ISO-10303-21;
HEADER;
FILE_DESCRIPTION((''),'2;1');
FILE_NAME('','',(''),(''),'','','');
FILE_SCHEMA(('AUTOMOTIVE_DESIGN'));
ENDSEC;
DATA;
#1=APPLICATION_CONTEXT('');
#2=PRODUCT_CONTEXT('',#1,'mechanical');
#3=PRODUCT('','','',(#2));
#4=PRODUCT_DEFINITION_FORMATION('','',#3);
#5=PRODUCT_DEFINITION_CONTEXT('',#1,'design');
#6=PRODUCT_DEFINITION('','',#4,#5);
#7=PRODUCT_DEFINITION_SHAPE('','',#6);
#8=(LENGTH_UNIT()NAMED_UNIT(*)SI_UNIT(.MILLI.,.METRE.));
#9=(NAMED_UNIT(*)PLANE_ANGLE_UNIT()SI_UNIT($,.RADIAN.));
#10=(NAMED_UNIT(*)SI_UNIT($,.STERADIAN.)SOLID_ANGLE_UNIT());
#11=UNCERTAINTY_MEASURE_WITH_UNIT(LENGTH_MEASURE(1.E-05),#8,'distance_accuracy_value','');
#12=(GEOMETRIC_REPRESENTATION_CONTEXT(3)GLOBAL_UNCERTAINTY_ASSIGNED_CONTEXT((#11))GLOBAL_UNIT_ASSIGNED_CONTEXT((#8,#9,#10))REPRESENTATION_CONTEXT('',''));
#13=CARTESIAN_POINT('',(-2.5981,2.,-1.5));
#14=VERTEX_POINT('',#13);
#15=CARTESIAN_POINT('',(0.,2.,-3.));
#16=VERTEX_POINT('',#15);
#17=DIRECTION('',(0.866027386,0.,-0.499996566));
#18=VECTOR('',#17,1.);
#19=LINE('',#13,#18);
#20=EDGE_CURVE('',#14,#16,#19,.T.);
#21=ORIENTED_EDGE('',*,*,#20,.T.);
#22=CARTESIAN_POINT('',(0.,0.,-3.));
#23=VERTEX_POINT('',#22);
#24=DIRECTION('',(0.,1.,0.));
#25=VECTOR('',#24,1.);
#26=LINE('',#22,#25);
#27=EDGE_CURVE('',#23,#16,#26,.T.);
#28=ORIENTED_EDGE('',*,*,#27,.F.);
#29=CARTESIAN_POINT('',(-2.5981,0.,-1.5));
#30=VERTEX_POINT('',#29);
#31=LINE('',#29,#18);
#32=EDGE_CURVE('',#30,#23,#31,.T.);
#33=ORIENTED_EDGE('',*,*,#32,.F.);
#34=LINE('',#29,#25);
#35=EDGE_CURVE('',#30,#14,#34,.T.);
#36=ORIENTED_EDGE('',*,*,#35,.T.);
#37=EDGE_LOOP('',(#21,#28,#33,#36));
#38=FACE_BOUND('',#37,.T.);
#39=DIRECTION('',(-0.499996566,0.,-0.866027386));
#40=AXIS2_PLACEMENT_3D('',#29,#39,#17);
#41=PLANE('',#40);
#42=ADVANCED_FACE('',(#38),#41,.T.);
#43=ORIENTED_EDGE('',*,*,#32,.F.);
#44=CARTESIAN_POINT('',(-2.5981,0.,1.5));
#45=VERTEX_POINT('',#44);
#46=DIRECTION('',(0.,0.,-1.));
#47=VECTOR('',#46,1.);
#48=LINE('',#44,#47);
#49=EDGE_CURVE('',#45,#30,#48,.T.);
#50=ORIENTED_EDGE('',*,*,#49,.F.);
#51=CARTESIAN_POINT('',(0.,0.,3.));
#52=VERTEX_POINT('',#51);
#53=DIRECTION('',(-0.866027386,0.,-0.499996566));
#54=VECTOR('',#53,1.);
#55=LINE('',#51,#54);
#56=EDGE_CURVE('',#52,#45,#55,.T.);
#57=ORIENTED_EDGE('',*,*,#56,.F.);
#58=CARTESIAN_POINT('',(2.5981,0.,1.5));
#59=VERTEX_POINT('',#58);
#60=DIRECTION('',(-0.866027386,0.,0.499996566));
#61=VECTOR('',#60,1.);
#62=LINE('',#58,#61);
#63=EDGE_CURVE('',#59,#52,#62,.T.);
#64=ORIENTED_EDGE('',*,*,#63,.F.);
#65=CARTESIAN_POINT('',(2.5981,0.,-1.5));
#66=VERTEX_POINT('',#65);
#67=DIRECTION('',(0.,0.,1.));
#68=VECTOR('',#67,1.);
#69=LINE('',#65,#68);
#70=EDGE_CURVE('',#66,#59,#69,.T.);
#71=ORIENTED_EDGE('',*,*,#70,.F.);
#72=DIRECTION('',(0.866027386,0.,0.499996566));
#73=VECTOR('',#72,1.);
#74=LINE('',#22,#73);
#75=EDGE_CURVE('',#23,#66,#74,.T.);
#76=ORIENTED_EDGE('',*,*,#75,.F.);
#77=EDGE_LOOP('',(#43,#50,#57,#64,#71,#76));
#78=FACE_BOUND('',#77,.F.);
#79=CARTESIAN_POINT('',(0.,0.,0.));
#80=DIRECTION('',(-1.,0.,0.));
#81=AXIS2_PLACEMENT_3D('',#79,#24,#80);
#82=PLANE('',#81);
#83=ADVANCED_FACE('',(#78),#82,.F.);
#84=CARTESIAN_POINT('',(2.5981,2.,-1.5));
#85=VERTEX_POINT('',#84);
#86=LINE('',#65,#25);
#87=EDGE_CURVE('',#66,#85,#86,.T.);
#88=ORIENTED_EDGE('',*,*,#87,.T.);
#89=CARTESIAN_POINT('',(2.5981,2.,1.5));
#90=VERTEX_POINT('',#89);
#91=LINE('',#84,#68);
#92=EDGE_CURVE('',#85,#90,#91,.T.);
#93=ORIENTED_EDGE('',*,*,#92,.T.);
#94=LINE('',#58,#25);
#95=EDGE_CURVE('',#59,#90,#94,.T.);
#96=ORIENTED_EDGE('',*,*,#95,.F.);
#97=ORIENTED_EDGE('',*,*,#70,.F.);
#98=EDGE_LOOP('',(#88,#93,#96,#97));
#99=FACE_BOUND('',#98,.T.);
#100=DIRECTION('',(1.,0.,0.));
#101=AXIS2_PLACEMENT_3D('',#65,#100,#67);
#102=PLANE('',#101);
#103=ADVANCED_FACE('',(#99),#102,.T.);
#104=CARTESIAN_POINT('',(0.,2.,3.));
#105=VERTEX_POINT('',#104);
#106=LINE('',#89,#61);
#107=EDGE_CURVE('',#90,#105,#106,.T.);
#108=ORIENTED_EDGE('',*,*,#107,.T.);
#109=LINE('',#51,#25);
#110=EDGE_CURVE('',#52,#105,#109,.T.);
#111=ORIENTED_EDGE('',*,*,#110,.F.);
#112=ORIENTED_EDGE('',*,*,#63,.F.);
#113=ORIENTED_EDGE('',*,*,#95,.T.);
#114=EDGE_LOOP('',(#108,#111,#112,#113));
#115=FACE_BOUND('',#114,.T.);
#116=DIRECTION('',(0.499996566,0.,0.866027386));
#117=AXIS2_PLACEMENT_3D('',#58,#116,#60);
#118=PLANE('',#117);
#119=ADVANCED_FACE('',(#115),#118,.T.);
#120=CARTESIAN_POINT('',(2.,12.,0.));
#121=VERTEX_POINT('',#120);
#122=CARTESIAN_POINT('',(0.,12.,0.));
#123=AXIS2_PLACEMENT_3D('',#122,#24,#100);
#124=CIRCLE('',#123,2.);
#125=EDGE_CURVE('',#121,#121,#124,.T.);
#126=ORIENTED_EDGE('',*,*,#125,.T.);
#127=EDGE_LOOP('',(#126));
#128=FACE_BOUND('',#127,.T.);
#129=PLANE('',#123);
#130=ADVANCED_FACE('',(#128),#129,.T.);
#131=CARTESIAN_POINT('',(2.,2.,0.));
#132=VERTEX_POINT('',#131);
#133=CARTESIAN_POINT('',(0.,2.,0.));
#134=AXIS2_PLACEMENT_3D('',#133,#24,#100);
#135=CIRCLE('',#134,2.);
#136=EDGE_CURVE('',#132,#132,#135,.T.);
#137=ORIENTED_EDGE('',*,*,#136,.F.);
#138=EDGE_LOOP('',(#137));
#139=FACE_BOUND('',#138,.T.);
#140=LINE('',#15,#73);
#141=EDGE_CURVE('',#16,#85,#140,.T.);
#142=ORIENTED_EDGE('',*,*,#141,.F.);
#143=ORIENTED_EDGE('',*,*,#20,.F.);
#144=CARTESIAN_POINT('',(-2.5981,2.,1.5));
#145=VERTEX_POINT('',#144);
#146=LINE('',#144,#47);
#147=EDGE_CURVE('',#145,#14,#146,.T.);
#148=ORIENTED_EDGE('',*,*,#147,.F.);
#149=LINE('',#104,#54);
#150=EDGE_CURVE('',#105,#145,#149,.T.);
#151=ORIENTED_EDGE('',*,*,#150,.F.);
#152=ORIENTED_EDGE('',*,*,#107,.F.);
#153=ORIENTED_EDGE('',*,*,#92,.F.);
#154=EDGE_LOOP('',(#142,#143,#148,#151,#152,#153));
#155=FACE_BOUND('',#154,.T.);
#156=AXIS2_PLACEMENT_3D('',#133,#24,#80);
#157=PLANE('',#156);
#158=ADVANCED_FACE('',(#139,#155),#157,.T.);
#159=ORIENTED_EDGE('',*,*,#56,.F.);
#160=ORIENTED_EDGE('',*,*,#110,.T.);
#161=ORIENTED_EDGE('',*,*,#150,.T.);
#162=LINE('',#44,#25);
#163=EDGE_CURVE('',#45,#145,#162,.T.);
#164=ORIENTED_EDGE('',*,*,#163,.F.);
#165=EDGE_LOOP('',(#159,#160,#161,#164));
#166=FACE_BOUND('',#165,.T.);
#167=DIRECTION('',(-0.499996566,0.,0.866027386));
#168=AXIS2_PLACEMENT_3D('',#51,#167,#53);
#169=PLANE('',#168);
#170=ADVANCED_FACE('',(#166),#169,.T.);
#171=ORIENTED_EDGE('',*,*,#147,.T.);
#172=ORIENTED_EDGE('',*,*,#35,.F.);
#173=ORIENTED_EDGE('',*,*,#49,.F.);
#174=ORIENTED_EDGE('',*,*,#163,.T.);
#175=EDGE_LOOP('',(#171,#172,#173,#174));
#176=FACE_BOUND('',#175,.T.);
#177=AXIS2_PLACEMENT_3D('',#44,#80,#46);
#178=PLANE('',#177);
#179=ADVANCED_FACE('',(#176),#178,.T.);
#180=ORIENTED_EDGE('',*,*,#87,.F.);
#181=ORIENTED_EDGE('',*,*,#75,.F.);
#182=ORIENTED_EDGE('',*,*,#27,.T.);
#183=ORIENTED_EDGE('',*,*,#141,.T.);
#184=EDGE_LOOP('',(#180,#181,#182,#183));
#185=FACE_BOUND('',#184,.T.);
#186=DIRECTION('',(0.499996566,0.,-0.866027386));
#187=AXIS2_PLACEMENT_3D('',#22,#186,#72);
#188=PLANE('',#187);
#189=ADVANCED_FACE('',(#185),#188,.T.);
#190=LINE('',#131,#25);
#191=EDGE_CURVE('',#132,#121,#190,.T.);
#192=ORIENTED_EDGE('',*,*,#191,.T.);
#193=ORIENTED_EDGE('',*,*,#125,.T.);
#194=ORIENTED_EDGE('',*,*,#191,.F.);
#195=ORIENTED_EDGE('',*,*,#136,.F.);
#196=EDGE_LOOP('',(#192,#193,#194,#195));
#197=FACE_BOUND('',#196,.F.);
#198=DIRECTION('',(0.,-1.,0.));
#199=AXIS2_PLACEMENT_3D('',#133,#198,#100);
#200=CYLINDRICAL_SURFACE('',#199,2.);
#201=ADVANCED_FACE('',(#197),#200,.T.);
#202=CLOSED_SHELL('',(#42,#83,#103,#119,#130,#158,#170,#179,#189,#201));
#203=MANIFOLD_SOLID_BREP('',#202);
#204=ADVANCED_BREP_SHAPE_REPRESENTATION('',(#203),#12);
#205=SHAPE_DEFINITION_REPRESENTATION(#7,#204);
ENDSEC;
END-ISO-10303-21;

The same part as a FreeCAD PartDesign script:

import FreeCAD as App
import Part
import Sketcher
from FreeCAD import Vector
Q = App.Units.Quantity

doc = App.newDocument("Part")
body = doc.addObject("PartDesign::Body", "Body")

# Sketch on XZ plane
sketch1 = doc.addObject("Sketcher::SketchObject", "Sketch")
body.addObject(sketch1)
sketch1.AttachmentSupport = (doc.XZ_Plane, [""])
sketch1.MapMode = "FlatFace"
sketch1.addGeometry([
    Part.LineSegment(Vector(2.6, -1.5, 0), Vector(0, -3, 0)),  # 0
    Part.LineSegment(Vector(0, -3, 0), Vector(-2.6, -1.5, 0)),  # 1
    Part.LineSegment(Vector(-2.6, -1.5, 0), Vector(-2.6, 1.5, 0)),  # 2
    Part.LineSegment(Vector(-2.6, 1.5, 0), Vector(0, 3, 0)),  # 3
    Part.LineSegment(Vector(0, 3, 0), Vector(2.6, 1.5, 0)),  # 4
    Part.LineSegment(Vector(2.6, 1.5, 0), Vector(2.6, -1.5, 0)),  # 5
], False)
sketch1.addConstraint([
    Sketcher.Constraint("Coincident", 0, 2, 1, 1),
    Sketcher.Constraint("Coincident", 1, 2, 2, 1),
    Sketcher.Constraint("Coincident", 2, 2, 3, 1),
    Sketcher.Constraint("Coincident", 3, 2, 4, 1),
    Sketcher.Constraint("Coincident", 4, 2, 5, 1),
    Sketcher.Constraint("Coincident", 5, 2, 0, 1),
    Sketcher.Constraint("Vertical", 2),
    Sketcher.Constraint("Vertical", 5),
    Sketcher.Constraint("Symmetric", 0, 2, 3, 2, -1, 1),
    Sketcher.Constraint("Symmetric", 1, 2, 4, 2, -1, 1),
    Sketcher.Constraint("PointOnObject", 0, 2, -2),
    Sketcher.Constraint("Parallel", 0, 3),
    Sketcher.Constraint("Horizontal", 2, 2, 4, 2),
    Sketcher.Constraint("DistanceY", 0, 2, 3, 2, Q("6 mm")),
    Sketcher.Constraint("DistanceY", 2, 1, 2, 2, Q("3 mm")),
    Sketcher.Constraint("Angle", 0, Q("-150.0002 deg")),
])
pad1 = doc.addObject("PartDesign::Pad", "Pad")
body.addObject(pad1)
pad1.Profile = sketch1
pad1.Length = 2
pad1.Reversed = True

# Sketch on XZ plane
sketch2 = doc.addObject("Sketcher::SketchObject", "Sketch001")
body.addObject(sketch2)
sketch2.AttachmentSupport = (doc.XZ_Plane, [""])
sketch2.MapMode = "FlatFace"
sketch2.AttachmentOffset = App.Placement(Vector(0, 0, -2), App.Rotation())
sketch2.addGeometry(Part.Circle(Vector(0, 0, 0), Vector(0, 0, 1), 2), False)
sketch2.addConstraint([
    Sketcher.Constraint("Coincident", 0, 3, -1, 1),
    Sketcher.Constraint("Diameter", 0, Q("4 mm")),
])
pad2 = doc.addObject("PartDesign::Pad", "Pad001")
body.addObject(pad2)
pad2.Profile = sketch2
pad2.Length = 10
pad2.Reversed = True

doc.recompute()
